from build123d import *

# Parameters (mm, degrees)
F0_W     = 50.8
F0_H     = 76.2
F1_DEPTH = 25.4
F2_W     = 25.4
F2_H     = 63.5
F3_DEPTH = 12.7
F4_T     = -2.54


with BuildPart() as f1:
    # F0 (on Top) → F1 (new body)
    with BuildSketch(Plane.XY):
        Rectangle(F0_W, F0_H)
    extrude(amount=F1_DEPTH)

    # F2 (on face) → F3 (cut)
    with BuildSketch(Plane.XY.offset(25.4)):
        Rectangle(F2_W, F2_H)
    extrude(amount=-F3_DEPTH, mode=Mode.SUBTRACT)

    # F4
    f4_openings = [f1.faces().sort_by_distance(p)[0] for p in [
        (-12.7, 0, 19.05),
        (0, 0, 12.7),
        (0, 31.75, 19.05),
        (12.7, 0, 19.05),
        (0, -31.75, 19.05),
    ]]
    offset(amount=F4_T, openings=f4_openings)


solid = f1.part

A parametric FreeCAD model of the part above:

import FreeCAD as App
import Part
import Sketcher
Q = App.Units.Quantity


def faces_at(feature, points):
    """Names of the faces that lie closest to the given points."""
    faces = feature.Shape.Faces
    near = lambda p: min(range(len(faces)), key=lambda i: faces[i].distToShape(Part.Vertex(*p))[0])
    return sorted({f"Face{near(p) + 1}" for p in points})

doc = App.newDocument("Part")
body = doc.addObject("PartDesign::Body", "Body")

# Sketch on XY plane
sketch1 = body.newObject("Sketcher::SketchObject", "Sketch")
sketch1.AttachmentSupport = (doc.getObject("XY_Plane"), [""])
sketch1.MapMode = "FlatFace"
sketch1.addGeometry([
    Part.LineSegment(App.Vector(-25.4, 38.1, 0), App.Vector(-25.4, -38.1, 0)),
    Part.LineSegment(App.Vector(-25.4, -38.1, 0), App.Vector(25.4, -38.1, 0)),
    Part.LineSegment(App.Vector(25.4, -38.1, 0), App.Vector(25.4, 38.1, 0)),
    Part.LineSegment(App.Vector(25.4, 38.1, 0), App.Vector(-25.4, 38.1, 0)),
], False)
sketch1.addConstraint([
    Sketcher.Constraint("Coincident", 0, 2, 1, 1),
    Sketcher.Constraint("Coincident", 1, 2, 2, 1),
    Sketcher.Constraint("Coincident", 2, 2, 3, 1),
    Sketcher.Constraint("Coincident", 3, 2, 0, 1),
    Sketcher.Constraint("Vertical", 0),
    Sketcher.Constraint("Horizontal", 1),
    Sketcher.Constraint("Vertical", 2),
    Sketcher.Constraint("Horizontal", 3),
    Sketcher.Constraint("Symmetric", 0, 2, 2, 2, -1, 1),
    Sketcher.Constraint("DistanceX", 1, 1, 1, 2, Q("2 in")),
    Sketcher.Constraint("DistanceY", 0, 2, 0, 1, Q("3 in")),
])
pad1 = body.newObject("PartDesign::Pad", "Pad")
pad1.Profile = sketch1
pad1.Length = Q("1 in")

# Sketch on XY plane
sketch2 = body.newObject("Sketcher::SketchObject", "Sketch001")
sketch2.AttachmentSupport = (doc.getObject("XY_Plane"), [""])
sketch2.MapMode = "FlatFace"
sketch2.AttachmentOffset = App.Placement(App.Vector(0, 0, 1 * 25.4), App.Rotation())
sketch2.addGeometry([
    Part.LineSegment(App.Vector(-12.7, 31.75, 0), App.Vector(-12.7, -31.75, 0)),
    Part.LineSegment(App.Vector(-12.7, -31.75, 0), App.Vector(12.7, -31.75, 0)),
    Part.LineSegment(App.Vector(12.7, -31.75, 0), App.Vector(12.7, 31.75, 0)),
    Part.LineSegment(App.Vector(12.7, 31.75, 0), App.Vector(-12.7, 31.75, 0)),
], False)
sketch2.addConstraint([
    Sketcher.Constraint("Coincident", 0, 2, 1, 1),
    Sketcher.Constraint("Coincident", 1, 2, 2, 1),
    Sketcher.Constraint("Coincident", 2, 2, 3, 1),
    Sketcher.Constraint("Coincident", 3, 2, 0, 1),
    Sketcher.Constraint("Vertical", 0),
    Sketcher.Constraint("Horizontal", 1),
    Sketcher.Constraint("Vertical", 2),
    Sketcher.Constraint("Horizontal", 3),
    Sketcher.Constraint("Symmetric", 0, 2, 2, 2, -1, 1),
    Sketcher.Constraint("DistanceX", 1, 1, 1, 2, Q("1 in")),
    Sketcher.Constraint("DistanceY", 0, 2, 0, 1, Q("2.5 in")),
])
pocket1 = body.newObject("PartDesign::Pocket", "Pocket")
pocket1.Profile = sketch2
pocket1.Length = Q("0.5 in")
doc.recompute()

thickness = body.newObject("PartDesign::Thickness", "Thickness")
thickness.Base = (pocket1, faces_at(pocket1, [
    (-12.7, 0, 19.05),
    (0, 0, 12.7),
    (0, 31.75, 19.05),
    (12.7, 0, 19.05),
    (0, -31.75, 19.05),
]))
thickness.Value = Q("0.1 in")
thickness.Reversed = True
thickness.Join = "Arc"

doc.recompute()
